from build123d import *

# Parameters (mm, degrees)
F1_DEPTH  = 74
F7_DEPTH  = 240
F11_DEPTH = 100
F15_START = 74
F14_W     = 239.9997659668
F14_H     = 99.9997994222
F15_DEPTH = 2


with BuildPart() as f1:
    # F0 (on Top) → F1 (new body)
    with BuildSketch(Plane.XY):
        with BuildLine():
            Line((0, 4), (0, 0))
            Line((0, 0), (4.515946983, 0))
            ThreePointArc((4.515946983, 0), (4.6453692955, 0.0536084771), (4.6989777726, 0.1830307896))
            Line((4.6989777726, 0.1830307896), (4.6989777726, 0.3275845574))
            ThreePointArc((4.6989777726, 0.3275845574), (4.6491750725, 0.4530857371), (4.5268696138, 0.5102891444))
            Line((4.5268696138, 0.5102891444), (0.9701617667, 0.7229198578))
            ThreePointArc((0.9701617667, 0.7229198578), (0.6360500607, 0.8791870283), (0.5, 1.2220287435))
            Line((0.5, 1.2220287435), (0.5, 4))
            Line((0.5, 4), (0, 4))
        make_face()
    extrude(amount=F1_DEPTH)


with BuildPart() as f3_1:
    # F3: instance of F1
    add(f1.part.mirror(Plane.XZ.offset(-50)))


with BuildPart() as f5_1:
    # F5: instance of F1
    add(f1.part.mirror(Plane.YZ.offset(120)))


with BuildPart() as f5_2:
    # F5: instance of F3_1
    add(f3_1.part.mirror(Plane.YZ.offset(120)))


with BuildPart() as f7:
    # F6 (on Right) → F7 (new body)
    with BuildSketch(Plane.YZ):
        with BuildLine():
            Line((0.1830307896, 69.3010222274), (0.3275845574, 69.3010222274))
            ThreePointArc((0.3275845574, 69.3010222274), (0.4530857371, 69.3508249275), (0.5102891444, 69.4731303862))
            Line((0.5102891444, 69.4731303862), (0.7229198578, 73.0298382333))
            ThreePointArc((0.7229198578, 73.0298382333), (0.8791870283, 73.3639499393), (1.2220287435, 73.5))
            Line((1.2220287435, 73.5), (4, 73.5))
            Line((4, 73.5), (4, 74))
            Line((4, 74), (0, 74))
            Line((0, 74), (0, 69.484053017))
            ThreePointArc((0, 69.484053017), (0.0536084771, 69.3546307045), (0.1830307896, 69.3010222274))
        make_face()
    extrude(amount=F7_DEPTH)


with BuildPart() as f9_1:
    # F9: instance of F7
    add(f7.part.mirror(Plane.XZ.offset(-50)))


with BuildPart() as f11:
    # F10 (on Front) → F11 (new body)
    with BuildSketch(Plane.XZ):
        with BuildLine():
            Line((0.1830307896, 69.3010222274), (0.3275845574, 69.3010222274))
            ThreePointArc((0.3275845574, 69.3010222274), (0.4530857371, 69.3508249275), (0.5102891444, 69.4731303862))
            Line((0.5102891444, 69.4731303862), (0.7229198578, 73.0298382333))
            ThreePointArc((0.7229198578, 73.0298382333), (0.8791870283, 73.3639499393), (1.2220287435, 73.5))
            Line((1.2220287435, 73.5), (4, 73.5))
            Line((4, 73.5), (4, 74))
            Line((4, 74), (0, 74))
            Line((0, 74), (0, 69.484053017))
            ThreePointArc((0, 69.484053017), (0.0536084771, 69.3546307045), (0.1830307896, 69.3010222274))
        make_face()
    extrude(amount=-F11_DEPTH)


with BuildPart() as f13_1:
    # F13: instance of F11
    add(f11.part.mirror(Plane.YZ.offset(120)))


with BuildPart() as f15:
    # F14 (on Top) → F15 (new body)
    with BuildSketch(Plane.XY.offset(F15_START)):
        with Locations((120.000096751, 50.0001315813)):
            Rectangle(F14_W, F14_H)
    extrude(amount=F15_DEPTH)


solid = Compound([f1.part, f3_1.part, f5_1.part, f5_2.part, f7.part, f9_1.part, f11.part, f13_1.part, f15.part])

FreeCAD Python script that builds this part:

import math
import FreeCAD as App
import Part
import Sketcher
from FreeCAD import Vector
Q = App.Units.Quantity

doc = App.newDocument("Part")
body = doc.addObject("PartDesign::Body", "Body")

sketch1 = doc.addObject("Sketcher::SketchObject", "Sketch")
body.addObject(sketch1)
sketch1.AttachmentSupport = (doc.XY_Plane, [""])
sketch1.MapMode = "FlatFace"
sketch1.addGeometry([
    Part.LineSegment(Vector(0, 4, 0), Vector(0, 0, 0)),
    Part.LineSegment(Vector(0, 0, 0), Vector(4.52, 0, 0)),
    Part.ArcOfCircle(Part.Circle(Vector(4.52, 0.18, 0), Vector(0, 0, 1), 0.18), math.radians(-90), math.radians(0)),
    Part.LineSegment(Vector(4.7, 0.18, 0), Vector(4.7, 0.33, 0)),
    Part.ArcOfCircle(Part.Circle(Vector(4.52, 0.33, 0), Vector(0, 0, 1), 0.18), math.radians(0), math.radians(87)),
    Part.LineSegment(Vector(4.53, 0.51, 0), Vector(0.97, 0.72, 0)),
    Part.ArcOfCircle(Part.Circle(Vector(1, 1.22, 0), Vector(0, 0, 1), 0.5), math.radians(180), math.radians(267)),
    Part.LineSegment(Vector(0.5, 1.22, 0), Vector(0.5, 4, 0)),
    Part.LineSegment(Vector(0.5, 4, 0), Vector(0, 4, 0)),
], False)
sketch1.addConstraint([
    Sketcher.Constraint("Coincident", 0, 2, 1, 1),
    Sketcher.Constraint("Tangent", 1, 2, 2, 1),
    Sketcher.Constraint("Tangent", 2, 2, 3, 1),
    Sketcher.Constraint("Tangent", 3, 2, 4, 1),
    Sketcher.Constraint("Tangent", 4, 2, 5, 1),
    Sketcher.Constraint("Tangent", 5, 2, 6, 2),
    Sketcher.Constraint("Tangent", 6, 1, 7, 1),
    Sketcher.Constraint("Coincident", 7, 2, 8, 1),
    Sketcher.Constraint("Coincident", 8, 2, 0, 1),
    Sketcher.Constraint("Vertical", 0),
    Sketcher.Constraint("Horizontal", 1),
    Sketcher.Constraint("Vertical", 3),
    Sketcher.Constraint("Vertical", 7),
    Sketcher.Constraint("Horizontal", 8),
    Sketcher.Constraint("Coincident", 0, 2, -1, 1),
    Sketcher.Constraint("Equal", 2, 4),
    Sketcher.Constraint("Radius", 6, Q("0.5 mm")),
    Sketcher.Constraint("DistanceY", 0, 2, 0, 1, Q("4 mm")),
    Sketcher.Constraint("DistanceX", 8, 2, 8, 1, Q("0.5 mm")),
    Sketcher.Constraint("Radius", 2, Q("0.183031 mm")),
    Sketcher.Constraint("DistanceY", 7, 1, 7, 2, Q("2.777971 mm")),
    Sketcher.Constraint("Distance", 5, Q("3.563058 mm")),
    Sketcher.Constraint("DistanceX", 1, 1, 1, 2, Q("4.515947 mm")),
])
pad1 = doc.addObject("PartDesign::Pad", "Pad")
body.addObject(pad1)
pad1.Profile = sketch1
pad1.Length = 74
body2 = doc.addObject("PartDesign::Body", "Body001")
doc.recompute()

mirroring = doc.addObject("Part::Mirroring", "Mirroring")
mirroring.Source = body
mirroring.Base = Vector(0, 50, 0)
mirroring.Normal = Vector(0, -1, 0)
body2.BaseFeature = mirroring
doc.recompute()
body3 = doc.addObject("PartDesign::Body", "Body002")
doc.recompute()

mirroring2 = doc.addObject("Part::Mirroring", "Mirroring001")
mirroring2.Source = body
mirroring2.Base = Vector(120, 0, 0)
mirroring2.Normal = Vector(1, 0, 0)
body3.BaseFeature = mirroring2
doc.recompute()
body4 = doc.addObject("PartDesign::Body", "Body003")
doc.recompute()

mirroring3 = doc.addObject("Part::Mirroring", "Mirroring002")
mirroring3.Source = body2
mirroring3.Base = Vector(120, 0, 0)
mirroring3.Normal = Vector(1, 0, 0)
body4.BaseFeature = mirroring3
doc.recompute()
body5 = doc.addObject("PartDesign::Body", "Body004")

sketch2 = doc.addObject("Sketcher::SketchObject", "Sketch001")
body5.addObject(sketch2)
sketch2.AttachmentSupport = (doc.getObject("YZ_Plane004"), [""])
sketch2.MapMode = "FlatFace"
sketch2.addGeometry([
    Part.LineSegment(Vector(0.18, 69.3, 0), Vector(0.33, 69.3, 0)),
    Part.ArcOfCircle(Part.Circle(Vector(0.33, 69.48, 0), Vector(0, 0, 1), 0.18), math.radians(-90), math.radians(-3)),
    Part.LineSegment(Vector(0.51, 69.47, 0), Vector(0.72, 73.03, 0)),
    Part.ArcOfCircle(Part.Circle(Vector(1.22, 73, 0), Vector(0, 0, 1), 0.5), math.radians(90), math.radians(177)),
    Part.LineSegment(Vector(1.22, 73.5, 0), Vector(4, 73.5, 0)),
    Part.LineSegment(Vector(4, 73.5, 0), Vector(4, 74, 0)),
    Part.LineSegment(Vector(4, 74, 0), Vector(0, 74, 0)),
    Part.LineSegment(Vector(0, 74, 0), Vector(0, 69.48, 0)),
    Part.ArcOfCircle(Part.Circle(Vector(0.18, 69.48, 0), Vector(0, 0, 1), 0.18), math.radians(180), math.radians(270)),
], False)
sketch2.addConstraint([
    Sketcher.Constraint("Tangent", 0, 2, 1, 1),
    Sketcher.Constraint("Tangent", 1, 2, 2, 1),
    Sketcher.Constraint("Tangent", 2, 2, 3, 2),
    Sketcher.Constraint("Tangent", 3, 1, 4, 1),
    Sketcher.Constraint("Coincident", 4, 2, 5, 1),
    Sketcher.Constraint("Coincident", 5, 2, 6, 1),
    Sketcher.Constraint("Coincident", 6, 2, 7, 1),
    Sketcher.Constraint("Tangent", 7, 2, 8, 1),
    Sketcher.Constraint("Tangent", 8, 2, 0, 1),
    Sketcher.Constraint("Horizontal", 0),
    Sketcher.Constraint("Horizontal", 4),
    Sketcher.Constraint("Vertical", 5),
    Sketcher.Constraint("Horizontal", 6),
    Sketcher.Constraint("Vertical", 7),
    Sketcher.Constraint("Equal", 1, 8),
    Sketcher.Constraint("PointOnObject", 6, 2, -2),
    Sketcher.Constraint("Radius", 3, Q("0.5 mm")),
    Sketcher.Constraint("DistanceX", 6, 2, 6, 1, Q("4 mm")),
    Sketcher.Constraint("DistanceY", 5, 1, 5, 2, Q("0.5 mm")),
    Sketcher.Constraint("DistanceY", -1, 1, 3, 3, Q("73 mm")),
    Sketcher.Constraint("Radius", 1, Q("0.183031 mm")),
    Sketcher.Constraint("DistanceX", 4, 1, 4, 2, Q("2.777971 mm")),
    Sketcher.Constraint("Distance", 2, Q("3.563058 mm")),
    Sketcher.Constraint("DistanceX", 0, 1, 0, 2, Q("0.144554 mm")),
])
pad2 = doc.addObject("PartDesign::Pad", "Pad001")
body5.addObject(pad2)
pad2.Profile = sketch2
pad2.Length = 240
body6 = doc.addObject("PartDesign::Body", "Body005")
doc.recompute()

mirroring4 = doc.addObject("Part::Mirroring", "Mirroring003")
mirroring4.Source = body5
mirroring4.Base = Vector(0, 50, 0)
mirroring4.Normal = Vector(0, -1, 0)
body6.BaseFeature = mirroring4
doc.recompute()
body7 = doc.addObject("PartDesign::Body", "Body006")

sketch3 = doc.addObject("Sketcher::SketchObject", "Sketch002")
body7.addObject(sketch3)
sketch3.AttachmentSupport = (doc.getObject("XZ_Plane006"), [""])
sketch3.MapMode = "FlatFace"
sketch3.addGeometry([
    Part.LineSegment(Vector(0.18, 69.3, 0), Vector(0.33, 69.3, 0)),
    Part.ArcOfCircle(Part.Circle(Vector(0.33, 69.48, 0), Vector(0, 0, 1), 0.18), math.radians(-90), math.radians(-3)),
    Part.LineSegment(Vector(0.51, 69.47, 0), Vector(0.72, 73.03, 0)),
    Part.ArcOfCircle(Part.Circle(Vector(1.22, 73, 0), Vector(0, 0, 1), 0.5), math.radians(90), math.radians(177)),
    Part.LineSegment(Vector(1.22, 73.5, 0), Vector(4, 73.5, 0)),
    Part.LineSegment(Vector(4, 73.5, 0), Vector(4, 74, 0)),
    Part.LineSegment(Vector(4, 74, 0), Vector(0, 74, 0)),
    Part.LineSegment(Vector(0, 74, 0), Vector(0, 69.48, 0)),
    Part.ArcOfCircle(Part.Circle(Vector(0.18, 69.48, 0), Vector(0, 0, 1), 0.18), math.radians(180), math.radians(270)),
], False)
sketch3.addConstraint([
    Sketcher.Constraint("Tangent", 0, 2, 1, 1),
    Sketcher.Constraint("Tangent", 1, 2, 2, 1),
    Sketcher.Constraint("Tangent", 2, 2, 3, 2),
    Sketcher.Constraint("Tangent", 3, 1, 4, 1),
    Sketcher.Constraint("Coincident", 4, 2, 5, 1),
    Sketcher.Constraint("Coincident", 5, 2, 6, 1),
    Sketcher.Constraint("Coincident", 6, 2, 7, 1),
    Sketcher.Constraint("Tangent", 7, 2, 8, 1),
    Sketcher.Constraint("Tangent", 8, 2, 0, 1),
    Sketcher.Constraint("Horizontal", 0),
    Sketcher.Constraint("Horizontal", 4),
    Sketcher.Constraint("Vertical", 5),
    Sketcher.Constraint("Horizontal", 6),
    Sketcher.Constraint("Vertical", 7),
    Sketcher.Constraint("Equal", 1, 8),
    Sketcher.Constraint("PointOnObject", 6, 2, -2),
    Sketcher.Constraint("Radius", 3, Q("0.5 mm")),
    Sketcher.Constraint("DistanceX", 6, 2, 6, 1, Q("4 mm")),
    Sketcher.Constraint("DistanceY", 5, 1, 5, 2, Q("0.5 mm")),
    Sketcher.Constraint("DistanceY", -1, 1, 3, 3, Q("73 mm")),
    Sketcher.Constraint("Radius", 1, Q("0.183031 mm")),
    Sketcher.Constraint("DistanceX", 4, 1, 4, 2, Q("2.777971 mm")),
    Sketcher.Constraint("Distance", 2, Q("3.563058 mm")),
    Sketcher.Constraint("DistanceX", 0, 1, 0, 2, Q("0.144554 mm")),
])
pad3 = doc.addObject("PartDesign::Pad", "Pad002")
body7.addObject(pad3)
pad3.Profile = sketch3
pad3.Length = 100
pad3.Reversed = True
body8 = doc.addObject("PartDesign::Body", "Body007")
doc.recompute()

mirroring5 = doc.addObject("Part::Mirroring", "Mirroring004")
mirroring5.Source = body7
mirroring5.Base = Vector(120, 0, 0)
mirroring5.Normal = Vector(1, 0, 0)
body8.BaseFeature = mirroring5
doc.recompute()
body9 = doc.addObject("PartDesign::Body", "Body008")

sketch4 = doc.addObject("Sketcher::SketchObject", "Sketch003")
body9.addObject(sketch4)
sketch4.AttachmentSupport = (doc.getObject("XY_Plane008"), [""])
sketch4.MapMode = "FlatFace"
sketch4.AttachmentOffset = App.Placement(Vector(0, 0, 74), App.Rotation())
sketch4.addGeometry([
    Part.LineSegment(Vector(0, 100, 0), Vector(0, 0, 0)),
    Part.LineSegment(Vector(0, 0, 0), Vector(240, 0, 0)),
    Part.LineSegment(Vector(240, 0, 0), Vector(240, 100, 0)),
    Part.LineSegment(Vector(240, 100, 0), Vector(0, 100, 0)),
], False)
sketch4.addConstraint([
    Sketcher.Constraint("Coincident", 0, 2, 1, 1),
    Sketcher.Constraint("Coincident", 1, 2, 2, 1),
    Sketcher.Constraint("Coincident", 2, 2, 3, 1),
    Sketcher.Constraint("Coincident", 3, 2, 0, 1),
    Sketcher.Constraint("Vertical", 0),
    Sketcher.Constraint("Horizontal", 1),
    Sketcher.Constraint("Vertical", 2),
    Sketcher.Constraint("Horizontal", 3),
    Sketcher.Constraint("DistanceY", 0, 2, 0, 1, Q("99.999799 mm")),
    Sketcher.Constraint("DistanceX", 1, 1, 1, 2, Q("239.999766 mm")),
    Sketcher.Constraint("DistanceY", -1, 1, 0, 2, Q("0.000232 mm")),
    Sketcher.Constraint("DistanceX", -1, 1, 1, 2, Q("239.99998 mm")),
])
pad4 = doc.addObject("PartDesign::Pad", "Pad003")
body9.addObject(pad4)
pad4.Profile = sketch4
pad4.Length = 2
mirroring.Visibility = False
mirroring2.Visibility = False
mirroring3.Visibility = False
mirroring4.Visibility = False
mirroring5.Visibility = False

doc.recompute()
